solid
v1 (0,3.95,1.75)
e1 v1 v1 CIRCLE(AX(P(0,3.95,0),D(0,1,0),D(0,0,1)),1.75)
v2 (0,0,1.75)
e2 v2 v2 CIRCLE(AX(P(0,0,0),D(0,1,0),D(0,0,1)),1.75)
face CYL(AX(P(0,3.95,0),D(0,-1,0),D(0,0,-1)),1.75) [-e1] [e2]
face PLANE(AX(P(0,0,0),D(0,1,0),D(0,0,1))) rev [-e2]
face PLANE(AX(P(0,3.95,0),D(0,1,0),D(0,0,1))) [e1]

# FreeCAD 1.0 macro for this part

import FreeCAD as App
import Part
import Sketcher
Q = App.Units.Quantity

doc = App.newDocument("Part")
params = doc.addObject("Spreadsheet::Sheet", "Params")
for row, (alias, value) in enumerate([
    ("sketch1_diameter", "3.5 mm"),
    ("pad1_length", "3.95 mm"),
], start=1):
    params.set(f"A{row}", alias)
    params.set(f"B{row}", "=" + value)
    params.setAlias(f"B{row}", alias)

body = doc.addObject("PartDesign::Body", "Body")

sketch1 = body.newObject("Sketcher::SketchObject", "Sketch")
sketch1.AttachmentSupport = (doc.getObject("XZ_Plane"), [""])
sketch1.MapMode = "FlatFace"
sketch1.addGeometry(Part.Circle(App.Vector(0, 0, 0), App.Vector(0, 0, 1), 1.8), False)
sketch1.addConstraint([
    Sketcher.Constraint("Coincident", 0, 3, -1, 1),
    Sketcher.Constraint("Diameter", 0, Q("3.5 mm")),
])
sketch1.setExpression("Constraints[1]", "Params.sketch1_diameter")
pad1 = body.newObject("PartDesign::Pad", "Pad")
pad1.Profile = sketch1
pad1.setExpression("Length", "Params.pad1_length")
pad1.Reversed = True

doc.recompute()
